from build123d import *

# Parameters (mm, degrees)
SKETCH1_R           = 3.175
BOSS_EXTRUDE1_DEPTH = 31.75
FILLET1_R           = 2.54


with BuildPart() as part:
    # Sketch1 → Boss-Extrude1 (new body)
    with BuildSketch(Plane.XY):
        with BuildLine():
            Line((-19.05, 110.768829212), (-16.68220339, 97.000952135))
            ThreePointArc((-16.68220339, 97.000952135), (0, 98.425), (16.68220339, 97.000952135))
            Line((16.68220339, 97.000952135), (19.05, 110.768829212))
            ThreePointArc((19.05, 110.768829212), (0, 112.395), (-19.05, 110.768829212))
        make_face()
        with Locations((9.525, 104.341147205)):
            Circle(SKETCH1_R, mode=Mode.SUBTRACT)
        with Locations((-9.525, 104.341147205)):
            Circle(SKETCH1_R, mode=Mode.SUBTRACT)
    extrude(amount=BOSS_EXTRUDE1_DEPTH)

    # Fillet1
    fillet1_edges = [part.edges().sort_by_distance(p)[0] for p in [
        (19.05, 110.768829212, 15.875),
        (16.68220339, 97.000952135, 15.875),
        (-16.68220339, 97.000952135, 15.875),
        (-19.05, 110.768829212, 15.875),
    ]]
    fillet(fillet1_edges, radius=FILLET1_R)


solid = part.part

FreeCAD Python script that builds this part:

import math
import FreeCAD as App
import Part
import Sketcher
Q = App.Units.Quantity


def edges_at(feature, points):
    """Names of the edges that pass closest to the given points."""
    edges = feature.Shape.Edges
    near = lambda p: min(range(len(edges)), key=lambda i: edges[i].distToShape(Part.Vertex(*p))[0])
    return sorted({f"Edge{near(p) + 1}" for p in points})

doc = App.newDocument("Part")
body = doc.addObject("PartDesign::Body", "Body")

# Sketch on XY plane
sketch1 = doc.addObject("Sketcher::SketchObject", "Sketch")
body.addObject(sketch1)
sketch1.AttachmentSupport = (doc.XY_Plane, [""])
sketch1.MapMode = "FlatFace"
sketch1.addGeometry(Part.LineSegment(App.Vector(-19.1, 110.8, 0), App.Vector(-16.7, 97, 0)), False)
sketch1.addGeometry(Part.ArcOfCircle(Part.Circle(App.Vector(0, 0, 0), App.Vector(0, 0, 1), 98.4), math.radians(80.24), math.radians(99.76)), False)
sketch1.addGeometry(Part.LineSegment(App.Vector(16.7, 97, 0), App.Vector(19.1, 110.8, 0)), False)
sketch1.addGeometry(Part.ArcOfCircle(Part.Circle(App.Vector(0, 0, 0), App.Vector(0, 0, 1), 112.4), math.radians(80.24), math.radians(99.76)), False)
sketch1.addGeometry(Part.Circle(App.Vector(-9.5, 104.3, 0), App.Vector(0, 0, 1), 3.2), False)
sketch1.addGeometry(Part.Circle(App.Vector(9.5, 104.3, 0), App.Vector(0, 0, 1), 3.2), False)
sketch1.addConstraint(Sketcher.Constraint("Coincident", 0, 2, 1, 2))
sketch1.addConstraint(Sketcher.Constraint("Coincident", 1, 1, 2, 1))
sketch1.addConstraint(Sketcher.Constraint("Coincident", 2, 2, 3, 1))
sketch1.addConstraint(Sketcher.Constraint("Coincident", 3, 2, 0, 1))
sketch1.addConstraint(Sketcher.Constraint("Coincident", 1, 3, -1, 1))
sketch1.addConstraint(Sketcher.Constraint("Coincident", 3, 3, -1, 1))
sketch1.addConstraint(Sketcher.Constraint("Equal", 4, 5))
sketch1.addConstraint(Sketcher.Constraint("Symmetric", 4, 3, 5, 3, -2))
sketch1.addConstraint(Sketcher.Constraint("Horizontal", 0, 2, 1, 1))
sketch1.addConstraint(Sketcher.Constraint("Horizontal", 2, 2, 3, 2))
sketch1.addConstraint(Sketcher.Constraint("Diameter", 4, Q("0.25 in")))
sketch1.addConstraint(Sketcher.Constraint("Radius", 1, Q("3.875 in")))
sketch1.addConstraint(Sketcher.Constraint("Radius", 3, Q("4.425 in")))
sketch1.addConstraint(Sketcher.Constraint("DistanceX", 3, 2, 2, 2, Q("1.5 in")))
sketch1.addConstraint(Sketcher.Constraint("DistanceX", 4, 3, 5, 3, Q("0.75 in")))
sketch1.addConstraint(Sketcher.Constraint("DistanceY", -1, 1, 4, 3, Q("104.341147 mm")))
sketch1.addConstraint(Sketcher.Constraint("DistanceX", 0, 2, -1, 1, Q("16.682203 mm")))
pad1 = doc.addObject("PartDesign::Pad", "Pad")
body.addObject(pad1)
pad1.Profile = sketch1
pad1.Length = Q("1.25 in")
doc.recompute()

fillet = doc.addObject("PartDesign::Fillet", "Fillet")
body.addObject(fillet)
fillet.Base = (pad1, edges_at(pad1, [
    (19.05, 110.769, 15.875),
    (16.682, 97.001, 15.875),
    (-16.682, 97.001, 15.875),
    (-19.05, 110.769, 15.875),
]))
fillet.Radius = Q("0.1 in")

doc.recompute()
